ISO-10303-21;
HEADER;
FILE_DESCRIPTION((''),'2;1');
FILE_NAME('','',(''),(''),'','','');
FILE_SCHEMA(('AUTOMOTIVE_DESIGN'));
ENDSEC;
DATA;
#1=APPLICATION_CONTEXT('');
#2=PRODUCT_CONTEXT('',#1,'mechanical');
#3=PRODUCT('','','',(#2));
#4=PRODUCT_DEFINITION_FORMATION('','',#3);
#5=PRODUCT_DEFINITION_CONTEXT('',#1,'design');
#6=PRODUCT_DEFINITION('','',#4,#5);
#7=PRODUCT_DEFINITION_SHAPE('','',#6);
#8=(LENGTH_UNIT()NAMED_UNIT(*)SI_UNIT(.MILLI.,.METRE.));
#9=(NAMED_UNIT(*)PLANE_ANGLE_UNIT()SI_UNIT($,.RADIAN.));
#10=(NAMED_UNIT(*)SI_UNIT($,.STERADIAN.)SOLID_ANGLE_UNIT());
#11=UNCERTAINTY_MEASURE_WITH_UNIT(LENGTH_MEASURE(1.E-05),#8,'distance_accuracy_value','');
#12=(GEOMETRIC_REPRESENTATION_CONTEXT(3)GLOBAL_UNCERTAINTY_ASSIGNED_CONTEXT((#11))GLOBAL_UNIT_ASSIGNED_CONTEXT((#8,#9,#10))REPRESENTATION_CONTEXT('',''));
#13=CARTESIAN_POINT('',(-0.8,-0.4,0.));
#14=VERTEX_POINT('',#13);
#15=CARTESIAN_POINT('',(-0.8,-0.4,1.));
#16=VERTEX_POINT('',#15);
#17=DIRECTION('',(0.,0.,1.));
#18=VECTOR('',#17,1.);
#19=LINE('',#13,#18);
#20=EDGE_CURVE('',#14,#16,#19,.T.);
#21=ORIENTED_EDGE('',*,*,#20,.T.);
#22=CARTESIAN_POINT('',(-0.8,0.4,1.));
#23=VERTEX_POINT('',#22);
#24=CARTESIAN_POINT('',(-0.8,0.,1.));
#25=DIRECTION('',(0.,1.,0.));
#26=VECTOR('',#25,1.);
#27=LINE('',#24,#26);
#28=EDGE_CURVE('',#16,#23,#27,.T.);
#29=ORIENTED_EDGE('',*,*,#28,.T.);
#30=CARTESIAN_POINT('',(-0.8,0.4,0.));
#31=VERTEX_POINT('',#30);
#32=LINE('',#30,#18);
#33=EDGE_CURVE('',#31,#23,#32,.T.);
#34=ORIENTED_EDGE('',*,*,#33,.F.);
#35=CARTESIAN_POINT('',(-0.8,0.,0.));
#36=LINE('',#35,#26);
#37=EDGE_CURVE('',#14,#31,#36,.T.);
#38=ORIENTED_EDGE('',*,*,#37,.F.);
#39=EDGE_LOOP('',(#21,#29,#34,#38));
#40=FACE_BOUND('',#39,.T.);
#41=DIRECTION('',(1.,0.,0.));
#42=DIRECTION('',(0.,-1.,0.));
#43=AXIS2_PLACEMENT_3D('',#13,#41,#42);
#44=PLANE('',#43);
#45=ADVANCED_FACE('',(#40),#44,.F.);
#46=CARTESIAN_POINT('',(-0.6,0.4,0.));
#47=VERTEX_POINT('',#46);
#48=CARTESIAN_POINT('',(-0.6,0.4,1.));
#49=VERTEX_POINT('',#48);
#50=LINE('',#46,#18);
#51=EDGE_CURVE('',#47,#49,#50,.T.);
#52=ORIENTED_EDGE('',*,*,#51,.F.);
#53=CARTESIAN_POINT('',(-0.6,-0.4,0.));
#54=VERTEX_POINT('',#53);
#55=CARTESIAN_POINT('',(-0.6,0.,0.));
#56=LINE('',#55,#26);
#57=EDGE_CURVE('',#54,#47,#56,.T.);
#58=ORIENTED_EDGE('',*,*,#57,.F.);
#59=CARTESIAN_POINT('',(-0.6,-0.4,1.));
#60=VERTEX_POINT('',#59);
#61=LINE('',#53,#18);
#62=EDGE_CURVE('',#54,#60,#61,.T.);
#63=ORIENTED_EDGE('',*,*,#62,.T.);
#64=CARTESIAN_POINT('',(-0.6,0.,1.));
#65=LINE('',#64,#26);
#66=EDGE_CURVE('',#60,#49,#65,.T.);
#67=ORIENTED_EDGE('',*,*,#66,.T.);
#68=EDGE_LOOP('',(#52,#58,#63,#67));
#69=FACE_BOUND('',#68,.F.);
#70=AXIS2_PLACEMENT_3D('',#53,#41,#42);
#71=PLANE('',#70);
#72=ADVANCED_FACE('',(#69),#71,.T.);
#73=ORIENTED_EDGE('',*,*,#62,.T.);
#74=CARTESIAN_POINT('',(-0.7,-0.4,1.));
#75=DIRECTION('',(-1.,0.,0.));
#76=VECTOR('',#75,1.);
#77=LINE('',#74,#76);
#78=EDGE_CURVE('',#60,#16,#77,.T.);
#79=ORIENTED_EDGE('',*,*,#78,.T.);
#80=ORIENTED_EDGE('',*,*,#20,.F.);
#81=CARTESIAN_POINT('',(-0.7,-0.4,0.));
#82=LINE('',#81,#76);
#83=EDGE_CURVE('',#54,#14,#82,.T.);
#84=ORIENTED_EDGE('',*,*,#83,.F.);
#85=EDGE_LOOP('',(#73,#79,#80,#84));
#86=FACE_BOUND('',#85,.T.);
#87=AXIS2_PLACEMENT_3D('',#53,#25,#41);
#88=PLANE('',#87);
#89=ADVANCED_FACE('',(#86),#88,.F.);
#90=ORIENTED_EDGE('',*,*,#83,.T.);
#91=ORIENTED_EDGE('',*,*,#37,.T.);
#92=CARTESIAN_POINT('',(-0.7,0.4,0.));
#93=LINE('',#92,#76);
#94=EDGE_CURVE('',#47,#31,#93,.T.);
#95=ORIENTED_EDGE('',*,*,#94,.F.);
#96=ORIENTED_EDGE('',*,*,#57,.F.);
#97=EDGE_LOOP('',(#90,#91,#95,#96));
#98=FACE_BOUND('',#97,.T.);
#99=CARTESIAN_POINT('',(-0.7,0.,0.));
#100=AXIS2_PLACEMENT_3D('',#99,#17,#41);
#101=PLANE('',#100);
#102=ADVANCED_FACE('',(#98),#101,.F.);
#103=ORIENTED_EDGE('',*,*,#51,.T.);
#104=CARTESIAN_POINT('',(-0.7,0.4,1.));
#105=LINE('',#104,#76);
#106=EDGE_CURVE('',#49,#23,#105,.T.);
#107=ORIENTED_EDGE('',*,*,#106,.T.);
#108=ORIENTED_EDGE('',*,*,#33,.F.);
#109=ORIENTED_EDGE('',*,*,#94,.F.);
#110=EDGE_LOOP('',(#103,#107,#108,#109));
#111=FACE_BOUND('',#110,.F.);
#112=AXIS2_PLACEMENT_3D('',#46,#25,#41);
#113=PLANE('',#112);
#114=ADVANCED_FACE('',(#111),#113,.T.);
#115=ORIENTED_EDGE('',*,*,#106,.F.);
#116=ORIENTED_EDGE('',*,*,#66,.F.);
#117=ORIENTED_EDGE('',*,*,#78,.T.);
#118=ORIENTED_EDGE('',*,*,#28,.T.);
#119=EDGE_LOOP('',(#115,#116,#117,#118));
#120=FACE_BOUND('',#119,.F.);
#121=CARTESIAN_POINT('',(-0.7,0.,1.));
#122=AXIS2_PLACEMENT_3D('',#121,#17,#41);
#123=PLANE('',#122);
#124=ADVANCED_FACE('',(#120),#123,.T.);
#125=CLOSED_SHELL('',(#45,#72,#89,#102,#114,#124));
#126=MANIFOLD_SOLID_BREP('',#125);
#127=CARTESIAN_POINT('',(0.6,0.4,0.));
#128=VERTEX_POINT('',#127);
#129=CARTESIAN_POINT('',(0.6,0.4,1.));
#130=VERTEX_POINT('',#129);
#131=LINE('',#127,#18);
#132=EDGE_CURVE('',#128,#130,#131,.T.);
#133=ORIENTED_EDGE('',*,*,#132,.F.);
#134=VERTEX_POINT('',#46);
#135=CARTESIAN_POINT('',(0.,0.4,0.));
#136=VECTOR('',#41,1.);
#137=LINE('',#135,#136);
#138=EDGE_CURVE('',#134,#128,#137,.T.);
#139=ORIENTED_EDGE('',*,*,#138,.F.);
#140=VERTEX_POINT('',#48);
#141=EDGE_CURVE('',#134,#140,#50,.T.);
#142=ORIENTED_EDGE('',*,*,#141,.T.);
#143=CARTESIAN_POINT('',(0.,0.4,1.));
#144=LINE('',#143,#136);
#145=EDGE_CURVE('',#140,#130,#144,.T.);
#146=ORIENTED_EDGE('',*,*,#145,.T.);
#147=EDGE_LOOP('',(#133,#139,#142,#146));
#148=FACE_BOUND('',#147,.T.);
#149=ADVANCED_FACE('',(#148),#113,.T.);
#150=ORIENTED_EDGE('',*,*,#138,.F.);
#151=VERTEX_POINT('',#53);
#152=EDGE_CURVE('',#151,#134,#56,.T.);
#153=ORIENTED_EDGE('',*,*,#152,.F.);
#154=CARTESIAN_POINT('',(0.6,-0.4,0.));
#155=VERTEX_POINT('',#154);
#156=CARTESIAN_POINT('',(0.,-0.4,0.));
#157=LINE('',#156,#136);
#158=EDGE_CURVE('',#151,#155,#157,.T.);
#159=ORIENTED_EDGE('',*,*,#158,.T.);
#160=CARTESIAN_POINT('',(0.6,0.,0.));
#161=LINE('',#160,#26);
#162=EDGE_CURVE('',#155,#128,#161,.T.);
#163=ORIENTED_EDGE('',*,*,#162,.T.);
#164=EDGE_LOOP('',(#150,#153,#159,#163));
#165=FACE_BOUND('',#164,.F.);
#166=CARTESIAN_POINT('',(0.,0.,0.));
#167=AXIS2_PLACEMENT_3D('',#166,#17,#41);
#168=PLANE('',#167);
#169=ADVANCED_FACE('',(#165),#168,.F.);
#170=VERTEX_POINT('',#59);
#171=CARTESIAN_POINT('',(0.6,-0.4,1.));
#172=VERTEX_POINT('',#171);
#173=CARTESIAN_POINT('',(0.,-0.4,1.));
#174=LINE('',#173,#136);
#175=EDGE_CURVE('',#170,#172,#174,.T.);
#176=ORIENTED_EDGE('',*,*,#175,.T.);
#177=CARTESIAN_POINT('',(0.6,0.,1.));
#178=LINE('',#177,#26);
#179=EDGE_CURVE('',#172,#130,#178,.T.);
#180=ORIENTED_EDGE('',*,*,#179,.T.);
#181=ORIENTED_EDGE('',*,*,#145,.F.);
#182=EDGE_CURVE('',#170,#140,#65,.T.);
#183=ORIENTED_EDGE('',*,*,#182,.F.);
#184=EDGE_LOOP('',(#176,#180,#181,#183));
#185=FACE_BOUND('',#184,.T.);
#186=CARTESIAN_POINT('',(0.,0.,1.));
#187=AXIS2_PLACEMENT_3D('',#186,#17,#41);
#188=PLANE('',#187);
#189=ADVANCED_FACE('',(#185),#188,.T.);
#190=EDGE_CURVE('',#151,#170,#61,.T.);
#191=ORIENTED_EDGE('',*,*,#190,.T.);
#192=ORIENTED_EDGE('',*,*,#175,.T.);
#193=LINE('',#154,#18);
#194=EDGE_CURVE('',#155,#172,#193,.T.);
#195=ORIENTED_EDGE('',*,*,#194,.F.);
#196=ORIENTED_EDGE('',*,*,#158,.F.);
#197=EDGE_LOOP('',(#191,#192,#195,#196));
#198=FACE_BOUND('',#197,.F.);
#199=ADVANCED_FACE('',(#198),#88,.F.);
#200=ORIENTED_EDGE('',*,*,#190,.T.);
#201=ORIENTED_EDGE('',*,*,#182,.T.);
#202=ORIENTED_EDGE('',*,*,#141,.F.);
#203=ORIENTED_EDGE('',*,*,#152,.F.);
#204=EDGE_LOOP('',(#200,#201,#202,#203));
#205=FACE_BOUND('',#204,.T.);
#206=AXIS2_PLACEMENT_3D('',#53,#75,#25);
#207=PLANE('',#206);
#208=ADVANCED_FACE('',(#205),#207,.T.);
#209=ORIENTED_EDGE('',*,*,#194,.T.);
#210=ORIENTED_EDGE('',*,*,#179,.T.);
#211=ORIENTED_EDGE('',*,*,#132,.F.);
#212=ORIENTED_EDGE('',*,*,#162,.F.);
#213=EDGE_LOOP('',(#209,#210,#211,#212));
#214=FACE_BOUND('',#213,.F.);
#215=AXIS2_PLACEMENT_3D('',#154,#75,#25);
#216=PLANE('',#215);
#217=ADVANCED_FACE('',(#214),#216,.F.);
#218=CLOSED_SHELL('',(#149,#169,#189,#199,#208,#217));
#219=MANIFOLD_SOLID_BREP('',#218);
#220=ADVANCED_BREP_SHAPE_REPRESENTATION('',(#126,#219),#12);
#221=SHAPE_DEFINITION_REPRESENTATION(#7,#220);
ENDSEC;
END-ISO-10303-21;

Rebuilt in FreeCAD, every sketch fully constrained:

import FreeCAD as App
import Part
import Sketcher
Q = App.Units.Quantity


def add_polygon(sketch, points):
    """Adds a closed chain of lines whose ends are joined by coincident constraints."""
    first, n = sketch.GeometryCount, len(points)
    for a, b in zip(points, points[1:] + points[:1]):
        sketch.addGeometry(Part.LineSegment(App.Vector(*a, 0), App.Vector(*b, 0)), False)
    for i in range(n):
        sketch.addConstraint(Sketcher.Constraint("Coincident", first + i, 2, first + (i + 1) % n, 1))

doc = App.newDocument("Part")
params = doc.addObject("Spreadsheet::Sheet", "Params")
for row, (alias, value) in enumerate([
    ("sketch1_width", "1.2 mm"),
    ("sketch1_height", "0.8 mm"),
    ("pad1_length", "1 mm"),
    ("sketch2_width", "0.2 mm"),
    ("sketch2_height", "0.8 mm"),
    ("pad2_length", "1 mm"),
], start=1):
    params.set(f"A{row}", alias)
    params.set(f"B{row}", "=" + value)
    params.setAlias(f"B{row}", alias)

body = doc.addObject("PartDesign::Body", "Body")

# Sketch on XY plane
sketch1 = body.newObject("Sketcher::SketchObject", "Sketch")
sketch1.AttachmentSupport = (doc.getObject("XY_Plane"), [""])
sketch1.MapMode = "FlatFace"
add_polygon(sketch1, [(-0.6, 0.4), (-0.6, -0.4), (0.6, -0.4), (0.6, 0.4)])  # lines 0-3
sketch1.addConstraint(Sketcher.Constraint("Vertical", 0))
sketch1.addConstraint(Sketcher.Constraint("Horizontal", 1))
sketch1.addConstraint(Sketcher.Constraint("Vertical", 2))
sketch1.addConstraint(Sketcher.Constraint("Horizontal", 3))
sketch1.addConstraint(Sketcher.Constraint("Symmetric", 0, 2, 2, 2, -1, 1))
sketch1.addConstraint(Sketcher.Constraint("DistanceX", 1, 1, 1, 2, Q("1.2 mm")))
sketch1.addConstraint(Sketcher.Constraint("DistanceY", 0, 2, 0, 1, Q("0.8 mm")))
sketch1.setExpression("Constraints[9]", "Params.sketch1_width")
sketch1.setExpression("Constraints[10]", "Params.sketch1_height")
pad1 = body.newObject("PartDesign::Pad", "Pad")
pad1.Profile = sketch1
pad1.setExpression("Length", "Params.pad1_length")
body2 = doc.addObject("PartDesign::Body", "Body001")

# Sketch on XY plane
sketch2 = body2.newObject("Sketcher::SketchObject", "Sketch001")
sketch2.AttachmentSupport = (doc.getObject("XY_Plane001"), [""])
sketch2.MapMode = "FlatFace"
add_polygon(sketch2, [(0.6, 0.4), (0.6, -0.4), (0.8, -0.4), (0.8, 0.4)])  # lines 0-3
sketch2.addConstraint(Sketcher.Constraint("Vertical", 0))
sketch2.addConstraint(Sketcher.Constraint("Horizontal", 1))
sketch2.addConstraint(Sketcher.Constraint("Vertical", 2))
sketch2.addConstraint(Sketcher.Constraint("Horizontal", 3))
sketch2.addConstraint(Sketcher.Constraint("DistanceX", 1, 1, 1, 2, Q("0.2 mm")))
sketch2.addConstraint(Sketcher.Constraint("DistanceY", 0, 2, 0, 1, Q("0.8 mm")))
sketch2.addConstraint(Sketcher.Constraint("DistanceX", -1, 1, 0, 2, Q("0.6 mm")))
sketch2.addConstraint(Sketcher.Constraint("DistanceY", 0, 2, -1, 1, Q("0.4 mm")))
sketch2.setExpression("Constraints[8]", "Params.sketch2_width")
sketch2.setExpression("Constraints[9]", "Params.sketch2_height")
pad2 = body2.newObject("PartDesign::Pad", "Pad001")
pad2.Profile = sketch2
pad2.setExpression("Length", "Params.pad2_length")
body3 = doc.addObject("PartDesign::Body", "Body002")
doc.recompute()

mirroring = doc.addObject("Part::Mirroring", "Mirroring")
mirroring.Source = body2
mirroring.Base = App.Vector(0, 0, 0)
mirroring.Normal = App.Vector(1, 0, 0)
body3.BaseFeature = mirroring
doc.recompute()
body2.Visibility = False
mirroring.Visibility = False

doc.recompute()
